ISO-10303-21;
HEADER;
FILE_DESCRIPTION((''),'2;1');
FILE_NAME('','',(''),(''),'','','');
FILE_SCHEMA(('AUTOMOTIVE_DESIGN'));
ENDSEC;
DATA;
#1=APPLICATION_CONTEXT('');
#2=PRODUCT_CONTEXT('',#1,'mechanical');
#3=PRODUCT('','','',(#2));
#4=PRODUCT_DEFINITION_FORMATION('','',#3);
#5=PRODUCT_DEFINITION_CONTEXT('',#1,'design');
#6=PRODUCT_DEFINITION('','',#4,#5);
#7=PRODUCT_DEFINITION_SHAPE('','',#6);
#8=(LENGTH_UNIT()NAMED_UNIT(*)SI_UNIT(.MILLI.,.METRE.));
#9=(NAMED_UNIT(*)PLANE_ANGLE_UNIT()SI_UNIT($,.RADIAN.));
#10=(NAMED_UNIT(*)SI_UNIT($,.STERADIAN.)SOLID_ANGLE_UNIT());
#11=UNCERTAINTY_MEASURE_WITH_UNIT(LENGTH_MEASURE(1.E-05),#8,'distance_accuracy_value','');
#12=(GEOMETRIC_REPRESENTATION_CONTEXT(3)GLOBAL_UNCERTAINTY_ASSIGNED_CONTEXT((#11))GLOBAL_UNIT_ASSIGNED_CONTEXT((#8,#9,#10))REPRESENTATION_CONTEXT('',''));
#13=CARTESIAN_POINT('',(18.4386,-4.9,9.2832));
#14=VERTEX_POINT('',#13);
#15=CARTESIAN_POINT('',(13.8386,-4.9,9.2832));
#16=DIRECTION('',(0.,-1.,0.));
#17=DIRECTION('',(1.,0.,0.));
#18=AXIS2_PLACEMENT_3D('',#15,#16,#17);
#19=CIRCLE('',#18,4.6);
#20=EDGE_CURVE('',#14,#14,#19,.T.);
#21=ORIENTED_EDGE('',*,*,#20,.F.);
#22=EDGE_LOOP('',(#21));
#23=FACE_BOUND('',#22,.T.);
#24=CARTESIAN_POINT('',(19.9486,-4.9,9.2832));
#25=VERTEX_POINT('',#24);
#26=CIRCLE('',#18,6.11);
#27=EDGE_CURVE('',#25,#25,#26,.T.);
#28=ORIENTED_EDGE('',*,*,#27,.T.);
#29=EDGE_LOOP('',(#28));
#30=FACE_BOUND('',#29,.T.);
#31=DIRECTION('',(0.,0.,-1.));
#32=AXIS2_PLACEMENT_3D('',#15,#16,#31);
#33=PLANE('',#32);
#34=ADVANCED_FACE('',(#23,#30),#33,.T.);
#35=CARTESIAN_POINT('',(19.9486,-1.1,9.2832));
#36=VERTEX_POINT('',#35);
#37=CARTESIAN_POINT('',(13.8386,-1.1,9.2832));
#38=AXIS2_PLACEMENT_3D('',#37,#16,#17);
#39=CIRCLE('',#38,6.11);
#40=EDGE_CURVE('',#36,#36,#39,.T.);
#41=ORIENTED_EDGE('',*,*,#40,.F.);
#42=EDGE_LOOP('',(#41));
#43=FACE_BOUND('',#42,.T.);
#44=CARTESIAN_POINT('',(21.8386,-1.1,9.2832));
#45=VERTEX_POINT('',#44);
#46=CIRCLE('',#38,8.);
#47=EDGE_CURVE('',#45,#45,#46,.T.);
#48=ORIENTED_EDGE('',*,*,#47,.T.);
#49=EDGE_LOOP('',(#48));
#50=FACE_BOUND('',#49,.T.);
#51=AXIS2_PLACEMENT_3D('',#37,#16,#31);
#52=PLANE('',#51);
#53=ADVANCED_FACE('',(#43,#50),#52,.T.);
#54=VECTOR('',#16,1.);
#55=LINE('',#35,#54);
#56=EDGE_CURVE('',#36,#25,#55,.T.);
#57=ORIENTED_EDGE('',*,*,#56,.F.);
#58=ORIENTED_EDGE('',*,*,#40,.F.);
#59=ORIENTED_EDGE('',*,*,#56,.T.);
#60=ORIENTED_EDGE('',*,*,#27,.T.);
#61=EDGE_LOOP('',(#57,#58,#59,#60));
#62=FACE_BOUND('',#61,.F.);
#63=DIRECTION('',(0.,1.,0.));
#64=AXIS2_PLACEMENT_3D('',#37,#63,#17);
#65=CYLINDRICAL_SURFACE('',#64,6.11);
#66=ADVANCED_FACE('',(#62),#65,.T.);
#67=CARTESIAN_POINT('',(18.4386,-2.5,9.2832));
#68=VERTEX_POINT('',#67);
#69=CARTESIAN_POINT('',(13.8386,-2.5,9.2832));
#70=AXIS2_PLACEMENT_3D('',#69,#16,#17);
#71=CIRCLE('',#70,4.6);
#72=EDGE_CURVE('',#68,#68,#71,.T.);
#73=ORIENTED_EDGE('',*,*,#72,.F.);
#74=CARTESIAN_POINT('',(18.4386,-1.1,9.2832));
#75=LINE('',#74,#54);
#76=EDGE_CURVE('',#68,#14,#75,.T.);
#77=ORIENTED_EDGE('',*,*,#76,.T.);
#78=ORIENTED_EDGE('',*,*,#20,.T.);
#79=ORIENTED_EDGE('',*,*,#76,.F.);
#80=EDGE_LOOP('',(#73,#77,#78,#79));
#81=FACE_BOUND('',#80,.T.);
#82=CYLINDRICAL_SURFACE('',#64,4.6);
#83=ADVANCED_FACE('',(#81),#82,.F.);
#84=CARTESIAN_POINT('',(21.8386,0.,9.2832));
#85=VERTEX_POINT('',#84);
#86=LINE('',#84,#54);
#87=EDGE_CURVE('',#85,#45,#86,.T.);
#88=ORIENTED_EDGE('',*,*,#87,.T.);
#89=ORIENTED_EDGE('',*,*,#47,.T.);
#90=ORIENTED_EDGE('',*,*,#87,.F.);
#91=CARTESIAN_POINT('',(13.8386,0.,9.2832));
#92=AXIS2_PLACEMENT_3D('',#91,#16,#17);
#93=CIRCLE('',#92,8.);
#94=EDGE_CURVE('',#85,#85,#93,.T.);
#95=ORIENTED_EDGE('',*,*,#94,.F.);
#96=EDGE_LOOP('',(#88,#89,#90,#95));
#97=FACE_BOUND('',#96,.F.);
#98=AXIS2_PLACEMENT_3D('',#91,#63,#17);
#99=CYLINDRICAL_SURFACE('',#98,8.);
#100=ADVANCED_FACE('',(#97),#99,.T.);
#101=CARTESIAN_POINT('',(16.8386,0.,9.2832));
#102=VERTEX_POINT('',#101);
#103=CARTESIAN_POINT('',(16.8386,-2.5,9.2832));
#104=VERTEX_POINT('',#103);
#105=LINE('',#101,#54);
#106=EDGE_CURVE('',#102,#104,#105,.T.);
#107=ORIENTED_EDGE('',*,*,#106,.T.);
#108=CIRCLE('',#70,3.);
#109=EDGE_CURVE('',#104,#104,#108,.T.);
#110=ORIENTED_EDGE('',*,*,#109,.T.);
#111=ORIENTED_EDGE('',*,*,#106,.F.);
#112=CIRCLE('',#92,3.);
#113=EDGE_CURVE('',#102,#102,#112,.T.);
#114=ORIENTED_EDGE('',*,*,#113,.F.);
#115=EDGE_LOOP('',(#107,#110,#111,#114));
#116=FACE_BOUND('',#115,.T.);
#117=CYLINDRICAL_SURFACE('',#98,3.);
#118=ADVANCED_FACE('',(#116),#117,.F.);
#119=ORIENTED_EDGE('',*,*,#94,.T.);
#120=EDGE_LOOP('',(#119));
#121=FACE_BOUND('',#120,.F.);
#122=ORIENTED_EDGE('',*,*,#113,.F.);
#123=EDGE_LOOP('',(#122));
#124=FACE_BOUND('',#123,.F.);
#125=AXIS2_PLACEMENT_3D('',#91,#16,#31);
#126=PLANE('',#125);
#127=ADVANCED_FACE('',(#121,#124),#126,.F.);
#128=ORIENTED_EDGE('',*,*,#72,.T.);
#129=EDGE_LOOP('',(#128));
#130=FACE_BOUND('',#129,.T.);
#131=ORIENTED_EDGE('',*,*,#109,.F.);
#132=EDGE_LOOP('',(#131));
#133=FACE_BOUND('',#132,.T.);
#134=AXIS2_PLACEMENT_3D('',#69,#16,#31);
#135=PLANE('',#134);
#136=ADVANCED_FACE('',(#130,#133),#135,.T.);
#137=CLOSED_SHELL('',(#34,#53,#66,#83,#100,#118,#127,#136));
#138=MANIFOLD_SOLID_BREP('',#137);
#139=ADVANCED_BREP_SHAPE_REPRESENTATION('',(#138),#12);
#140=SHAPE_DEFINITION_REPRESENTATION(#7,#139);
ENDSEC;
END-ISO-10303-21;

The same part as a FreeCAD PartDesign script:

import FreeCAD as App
import Part
import Sketcher
Q = App.Units.Quantity

doc = App.newDocument("Part")
body = doc.addObject("PartDesign::Body", "Body")

# Sketch on XZ plane
sketch1 = body.newObject("Sketcher::SketchObject", "Sketch")
sketch1.AttachmentSupport = (doc.getObject("XZ_Plane"), [""])
sketch1.MapMode = "FlatFace"
sketch1.addGeometry([
    Part.Circle(App.Vector(13.8, 9.3, 0), App.Vector(0, 0, 1), 8),
    Part.Circle(App.Vector(13.8, 9.3, 0), App.Vector(0, 0, 1), 3),
], False)
sketch1.addConstraint([
    Sketcher.Constraint("Coincident", 1, 3, 0, 3),
    Sketcher.Constraint("Diameter", 0, Q("16 mm")),
    Sketcher.Constraint("Diameter", 1, Q("6 mm")),
    Sketcher.Constraint("DistanceX", -1, 1, 0, 3, Q("13.8386 mm")),
    Sketcher.Constraint("DistanceY", -1, 1, 0, 3, Q("9.2832 mm")),
])
pad1 = body.newObject("PartDesign::Pad", "Pad")
pad1.Profile = sketch1
pad1.Length = 1.1

# Sketch on XZ plane
sketch2 = body.newObject("Sketcher::SketchObject", "Sketch001")
sketch2.AttachmentSupport = (doc.getObject("XZ_Plane"), [""])
sketch2.MapMode = "FlatFace"
sketch2.AttachmentOffset = App.Placement(App.Vector(0, 0, 1.1), App.Rotation())
sketch2.addGeometry([
    Part.Circle(App.Vector(13.8, 9.3, 0), App.Vector(0, 0, 1), 6.1),
    Part.Circle(App.Vector(13.8, 9.3, 0), App.Vector(0, 0, 1), 4.6),
], False)
sketch2.addConstraint([
    Sketcher.Constraint("Coincident", 1, 3, 0, 3),
    Sketcher.Constraint("Diameter", 1, Q("9.2 mm")),
    Sketcher.Constraint("Diameter", 0, Q("12.22 mm")),
    Sketcher.Constraint("DistanceX", -1, 1, 0, 3, Q("13.8386 mm")),
    Sketcher.Constraint("DistanceY", -1, 1, 0, 3, Q("9.2832 mm")),
])
pad2 = body.newObject("PartDesign::Pad", "Pad001")
pad2.Profile = sketch2
pad2.Length = 3.8

# Sketch on XZ plane
sketch3 = body.newObject("Sketcher::SketchObject", "Sketch002")
sketch3.AttachmentSupport = (doc.getObject("XZ_Plane"), [""])
sketch3.MapMode = "FlatFace"
sketch3.AttachmentOffset = App.Placement(App.Vector(0, 0, 1.1), App.Rotation())
sketch3.addGeometry([
    Part.Circle(App.Vector(13.8, 9.3, 0), App.Vector(0, 0, 1), 4.6),
    Part.Circle(App.Vector(13.8, 9.3, 0), App.Vector(0, 0, 1), 3),
], False)
sketch3.addConstraint([
    Sketcher.Constraint("Coincident", 1, 3, 0, 3),
    Sketcher.Constraint("Diameter", 1, Q("6 mm")),
    Sketcher.Constraint("Diameter", 0, Q("9.2 mm")),
    Sketcher.Constraint("DistanceX", -1, 1, 0, 3, Q("13.8386 mm")),
    Sketcher.Constraint("DistanceY", -1, 1, 0, 3, Q("9.2832 mm")),
])
pad3 = body.newObject("PartDesign::Pad", "Pad002")
pad3.Profile = sketch3
pad3.Length = 1.4

doc.recompute()
